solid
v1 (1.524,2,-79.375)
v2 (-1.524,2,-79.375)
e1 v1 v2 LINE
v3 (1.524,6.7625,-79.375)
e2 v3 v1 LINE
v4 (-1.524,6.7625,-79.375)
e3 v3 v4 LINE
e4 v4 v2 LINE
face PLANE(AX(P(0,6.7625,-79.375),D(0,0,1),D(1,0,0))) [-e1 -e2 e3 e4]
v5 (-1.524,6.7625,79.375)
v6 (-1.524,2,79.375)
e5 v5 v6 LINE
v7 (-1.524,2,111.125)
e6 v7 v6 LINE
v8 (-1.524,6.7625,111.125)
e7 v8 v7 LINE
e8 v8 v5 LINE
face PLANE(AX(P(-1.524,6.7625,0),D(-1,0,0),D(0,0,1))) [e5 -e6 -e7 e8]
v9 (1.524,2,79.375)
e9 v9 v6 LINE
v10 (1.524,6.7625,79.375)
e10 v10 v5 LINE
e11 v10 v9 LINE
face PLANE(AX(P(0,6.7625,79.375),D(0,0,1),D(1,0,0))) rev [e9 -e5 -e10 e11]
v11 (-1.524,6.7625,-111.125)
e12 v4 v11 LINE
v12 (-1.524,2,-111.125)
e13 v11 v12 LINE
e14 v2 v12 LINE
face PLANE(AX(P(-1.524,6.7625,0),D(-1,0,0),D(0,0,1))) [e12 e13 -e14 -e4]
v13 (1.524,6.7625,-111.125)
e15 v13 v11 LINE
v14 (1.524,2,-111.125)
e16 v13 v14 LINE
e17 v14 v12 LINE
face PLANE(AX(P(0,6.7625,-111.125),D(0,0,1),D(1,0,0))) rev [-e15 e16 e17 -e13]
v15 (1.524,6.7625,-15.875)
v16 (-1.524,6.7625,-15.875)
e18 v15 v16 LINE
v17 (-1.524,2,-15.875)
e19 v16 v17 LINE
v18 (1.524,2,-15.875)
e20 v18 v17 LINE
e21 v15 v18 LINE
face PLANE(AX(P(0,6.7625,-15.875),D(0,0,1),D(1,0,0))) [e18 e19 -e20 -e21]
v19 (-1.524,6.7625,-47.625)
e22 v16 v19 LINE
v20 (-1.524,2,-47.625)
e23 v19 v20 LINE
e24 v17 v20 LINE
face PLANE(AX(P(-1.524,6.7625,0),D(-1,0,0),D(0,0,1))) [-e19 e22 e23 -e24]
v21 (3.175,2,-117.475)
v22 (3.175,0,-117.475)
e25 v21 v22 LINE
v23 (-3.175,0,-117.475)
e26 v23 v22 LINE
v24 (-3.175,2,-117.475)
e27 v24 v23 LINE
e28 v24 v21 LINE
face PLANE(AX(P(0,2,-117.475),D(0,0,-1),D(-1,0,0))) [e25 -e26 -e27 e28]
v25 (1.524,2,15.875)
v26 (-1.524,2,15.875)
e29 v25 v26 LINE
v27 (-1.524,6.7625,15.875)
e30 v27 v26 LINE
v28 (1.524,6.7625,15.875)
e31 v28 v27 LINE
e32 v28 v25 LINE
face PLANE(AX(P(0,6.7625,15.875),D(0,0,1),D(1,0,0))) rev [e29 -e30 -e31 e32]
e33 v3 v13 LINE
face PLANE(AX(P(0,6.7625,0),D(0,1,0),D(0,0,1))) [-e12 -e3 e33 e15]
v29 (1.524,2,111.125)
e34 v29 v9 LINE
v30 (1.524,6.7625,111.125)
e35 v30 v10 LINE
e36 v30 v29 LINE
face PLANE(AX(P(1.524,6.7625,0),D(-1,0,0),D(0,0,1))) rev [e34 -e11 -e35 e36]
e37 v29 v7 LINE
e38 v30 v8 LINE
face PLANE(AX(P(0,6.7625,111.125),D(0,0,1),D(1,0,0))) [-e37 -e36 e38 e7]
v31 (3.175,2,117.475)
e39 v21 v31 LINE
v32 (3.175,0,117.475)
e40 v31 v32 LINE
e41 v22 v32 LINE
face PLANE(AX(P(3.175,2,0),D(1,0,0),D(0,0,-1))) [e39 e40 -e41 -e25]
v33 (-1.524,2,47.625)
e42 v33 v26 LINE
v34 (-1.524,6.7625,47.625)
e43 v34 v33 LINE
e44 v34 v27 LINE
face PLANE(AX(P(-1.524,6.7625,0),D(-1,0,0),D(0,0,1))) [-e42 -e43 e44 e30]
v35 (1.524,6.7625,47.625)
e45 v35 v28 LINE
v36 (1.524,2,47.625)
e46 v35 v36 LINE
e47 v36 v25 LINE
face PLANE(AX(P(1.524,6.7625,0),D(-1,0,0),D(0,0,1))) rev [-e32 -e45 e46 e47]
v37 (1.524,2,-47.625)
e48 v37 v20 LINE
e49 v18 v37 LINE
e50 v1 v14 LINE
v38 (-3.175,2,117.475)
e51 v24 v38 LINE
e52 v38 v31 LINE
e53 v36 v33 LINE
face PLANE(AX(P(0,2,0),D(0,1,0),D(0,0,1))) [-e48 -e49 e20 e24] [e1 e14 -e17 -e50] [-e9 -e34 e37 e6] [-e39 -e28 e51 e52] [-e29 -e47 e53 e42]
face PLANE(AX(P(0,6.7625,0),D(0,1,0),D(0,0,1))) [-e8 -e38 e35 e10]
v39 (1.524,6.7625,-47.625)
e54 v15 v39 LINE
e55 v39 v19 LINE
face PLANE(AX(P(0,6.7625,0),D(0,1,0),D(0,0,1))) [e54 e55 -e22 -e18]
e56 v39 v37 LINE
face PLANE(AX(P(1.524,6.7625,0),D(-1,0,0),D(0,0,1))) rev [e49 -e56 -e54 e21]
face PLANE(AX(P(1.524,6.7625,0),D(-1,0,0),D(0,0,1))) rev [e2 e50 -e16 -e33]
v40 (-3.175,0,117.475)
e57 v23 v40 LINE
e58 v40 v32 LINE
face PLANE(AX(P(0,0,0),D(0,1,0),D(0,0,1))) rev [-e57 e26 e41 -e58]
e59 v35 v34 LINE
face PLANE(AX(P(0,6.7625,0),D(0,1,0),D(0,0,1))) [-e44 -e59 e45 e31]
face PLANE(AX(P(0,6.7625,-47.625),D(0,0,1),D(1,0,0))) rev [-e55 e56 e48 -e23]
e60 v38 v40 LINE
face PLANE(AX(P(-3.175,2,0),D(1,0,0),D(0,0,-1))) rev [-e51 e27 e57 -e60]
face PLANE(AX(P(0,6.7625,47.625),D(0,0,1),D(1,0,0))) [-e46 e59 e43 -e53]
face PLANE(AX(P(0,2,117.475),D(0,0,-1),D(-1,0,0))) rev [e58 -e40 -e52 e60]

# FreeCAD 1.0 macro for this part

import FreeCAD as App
import Part
import Sketcher
from FreeCAD import Vector
Q = App.Units.Quantity

doc = App.newDocument("Part")
body = doc.addObject("PartDesign::Body", "Body")

# Sketch on XZ plane
sketch1 = body.newObject("Sketcher::SketchObject", "Sketch")
sketch1.AttachmentSupport = (doc.getObject("XZ_Plane"), [""])
sketch1.MapMode = "FlatFace"
sketch1.addGeometry([
    Part.LineSegment(Vector(3, -117, 0), Vector(-3, -117, 0)),
    Part.LineSegment(Vector(-3, -117, 0), Vector(-3, 117, 0)),
    Part.LineSegment(Vector(-3, 117, 0), Vector(3, 117, 0)),
    Part.LineSegment(Vector(3, 117, 0), Vector(3, -117, 0)),
], False)
sketch1.addConstraint([
    Sketcher.Constraint("Coincident", 0, 2, 1, 1),
    Sketcher.Constraint("Coincident", 1, 2, 2, 1),
    Sketcher.Constraint("Coincident", 2, 2, 3, 1),
    Sketcher.Constraint("Coincident", 3, 2, 0, 1),
    Sketcher.Constraint("Horizontal", 0),
    Sketcher.Constraint("Vertical", 1),
    Sketcher.Constraint("Horizontal", 2),
    Sketcher.Constraint("Vertical", 3),
    Sketcher.Constraint("Symmetric", 0, 2, 2, 2, -1, 1),
    Sketcher.Constraint("DistanceX", 0, 2, 0, 1, Q("0.25 in")),
    Sketcher.Constraint("DistanceY", 1, 1, 1, 2, Q("9.25 in")),
])
pad1 = body.newObject("PartDesign::Pad", "Pad")
pad1.Profile = sketch1
pad1.Length = 2
pad1.Reversed = True

# Sketch on XZ plane
sketch2 = body.newObject("Sketcher::SketchObject", "Sketch001")
sketch2.AttachmentSupport = (doc.getObject("XZ_Plane"), [""])
sketch2.MapMode = "FlatFace"
sketch2.AttachmentOffset = App.Placement(Vector(0, 0, -2), App.Rotation())
sketch2.addGeometry([
    Part.LineSegment(Vector(1.5, -79.4, 0), Vector(1.5, -111.1, 0)),  # 0
    Part.LineSegment(Vector(1.5, -111.1, 0), Vector(-1.5, -111.1, 0)),  # 1
    Part.LineSegment(Vector(-1.5, -111.1, 0), Vector(-1.5, -79.4, 0)),  # 2
    Part.LineSegment(Vector(-1.5, -79.4, 0), Vector(1.5, -79.4, 0)),  # 3
    Part.LineSegment(Vector(1.5, -15.9, 0), Vector(1.5, -47.6, 0)),  # 4
    Part.LineSegment(Vector(1.5, -47.6, 0), Vector(-1.5, -47.6, 0)),  # 5
    Part.LineSegment(Vector(-1.5, -47.6, 0), Vector(-1.5, -15.9, 0)),  # 6
    Part.LineSegment(Vector(-1.5, -15.9, 0), Vector(1.5, -15.9, 0)),  # 7
    Part.LineSegment(Vector(1.5, 47.6, 0), Vector(1.5, 15.9, 0)),  # 8
    Part.LineSegment(Vector(1.5, 15.9, 0), Vector(-1.5, 15.9, 0)),  # 9
    Part.LineSegment(Vector(-1.5, 15.9, 0), Vector(-1.5, 47.6, 0)),  # 10
    Part.LineSegment(Vector(-1.5, 47.6, 0), Vector(1.5, 47.6, 0)),  # 11
    Part.LineSegment(Vector(1.5, 111.1, 0), Vector(1.5, 79.4, 0)),  # 12
    Part.LineSegment(Vector(1.5, 79.4, 0), Vector(-1.5, 79.4, 0)),  # 13
    Part.LineSegment(Vector(-1.5, 79.4, 0), Vector(-1.5, 111.1, 0)),  # 14
    Part.LineSegment(Vector(-1.5, 111.1, 0), Vector(1.5, 111.1, 0)),  # 15
], False)
sketch2.addConstraint([
    Sketcher.Constraint("Coincident", 0, 2, 1, 1),
    Sketcher.Constraint("Coincident", 1, 2, 2, 1),
    Sketcher.Constraint("Coincident", 2, 2, 3, 1),
    Sketcher.Constraint("Coincident", 3, 2, 0, 1),
    Sketcher.Constraint("Coincident", 4, 2, 5, 1),
    Sketcher.Constraint("Coincident", 5, 2, 6, 1),
    Sketcher.Constraint("Coincident", 6, 2, 7, 1),
    Sketcher.Constraint("Coincident", 7, 2, 4, 1),
    Sketcher.Constraint("Coincident", 8, 2, 9, 1),
    Sketcher.Constraint("Coincident", 9, 2, 10, 1),
    Sketcher.Constraint("Coincident", 10, 2, 11, 1),
    Sketcher.Constraint("Coincident", 11, 2, 8, 1),
    Sketcher.Constraint("Coincident", 12, 2, 13, 1),
    Sketcher.Constraint("Coincident", 13, 2, 14, 1),
    Sketcher.Constraint("Coincident", 14, 2, 15, 1),
    Sketcher.Constraint("Coincident", 15, 2, 12, 1),
    Sketcher.Constraint("Vertical", 0),
    Sketcher.Constraint("Horizontal", 1),
    Sketcher.Constraint("Vertical", 2),
    Sketcher.Constraint("Horizontal", 3),
    Sketcher.Constraint("Vertical", 4),
    Sketcher.Constraint("Horizontal", 5),
    Sketcher.Constraint("Vertical", 6),
    Sketcher.Constraint("Horizontal", 7),
    Sketcher.Constraint("Vertical", 8),
    Sketcher.Constraint("Horizontal", 9),
    Sketcher.Constraint("Vertical", 10),
    Sketcher.Constraint("Horizontal", 11),
    Sketcher.Constraint("Vertical", 12),
    Sketcher.Constraint("Horizontal", 13),
    Sketcher.Constraint("Vertical", 14),
    Sketcher.Constraint("Horizontal", 15),
    Sketcher.Constraint("Symmetric", 6, 2, 8, 2, -1, 1),
    Sketcher.Constraint("Symmetric", 4, 2, 10, 2, -1, 1),
    Sketcher.Constraint("Symmetric", 2, 2, 12, 2, -1, 1),
    Sketcher.Constraint("Symmetric", 0, 2, 14, 2, -1, 1),
    Sketcher.Constraint("Vertical", 3, 2, 4, 2),
    Sketcher.Constraint("Vertical", 2, 2, 5, 2),
    Sketcher.Constraint("Vertical", 7, 2, 8, 2),
    Sketcher.Constraint("Equal", 2, 4),
    Sketcher.Constraint("DistanceX", 1, 2, 1, 1, Q("0.12 in")),
    Sketcher.Constraint("DistanceY", 0, 2, 0, 1, Q("1.25 in")),
    Sketcher.Constraint("DistanceY", 0, 2, 4, 2, Q("2.5 in")),
    Sketcher.Constraint("DistanceY", 4, 2, 8, 2, Q("2.5 in")),
])
pad2 = body.newObject("PartDesign::Pad", "Pad001")
pad2.Profile = sketch2
pad2.Length = Q("0.1875 in")
pad2.Reversed = True

doc.recompute()
